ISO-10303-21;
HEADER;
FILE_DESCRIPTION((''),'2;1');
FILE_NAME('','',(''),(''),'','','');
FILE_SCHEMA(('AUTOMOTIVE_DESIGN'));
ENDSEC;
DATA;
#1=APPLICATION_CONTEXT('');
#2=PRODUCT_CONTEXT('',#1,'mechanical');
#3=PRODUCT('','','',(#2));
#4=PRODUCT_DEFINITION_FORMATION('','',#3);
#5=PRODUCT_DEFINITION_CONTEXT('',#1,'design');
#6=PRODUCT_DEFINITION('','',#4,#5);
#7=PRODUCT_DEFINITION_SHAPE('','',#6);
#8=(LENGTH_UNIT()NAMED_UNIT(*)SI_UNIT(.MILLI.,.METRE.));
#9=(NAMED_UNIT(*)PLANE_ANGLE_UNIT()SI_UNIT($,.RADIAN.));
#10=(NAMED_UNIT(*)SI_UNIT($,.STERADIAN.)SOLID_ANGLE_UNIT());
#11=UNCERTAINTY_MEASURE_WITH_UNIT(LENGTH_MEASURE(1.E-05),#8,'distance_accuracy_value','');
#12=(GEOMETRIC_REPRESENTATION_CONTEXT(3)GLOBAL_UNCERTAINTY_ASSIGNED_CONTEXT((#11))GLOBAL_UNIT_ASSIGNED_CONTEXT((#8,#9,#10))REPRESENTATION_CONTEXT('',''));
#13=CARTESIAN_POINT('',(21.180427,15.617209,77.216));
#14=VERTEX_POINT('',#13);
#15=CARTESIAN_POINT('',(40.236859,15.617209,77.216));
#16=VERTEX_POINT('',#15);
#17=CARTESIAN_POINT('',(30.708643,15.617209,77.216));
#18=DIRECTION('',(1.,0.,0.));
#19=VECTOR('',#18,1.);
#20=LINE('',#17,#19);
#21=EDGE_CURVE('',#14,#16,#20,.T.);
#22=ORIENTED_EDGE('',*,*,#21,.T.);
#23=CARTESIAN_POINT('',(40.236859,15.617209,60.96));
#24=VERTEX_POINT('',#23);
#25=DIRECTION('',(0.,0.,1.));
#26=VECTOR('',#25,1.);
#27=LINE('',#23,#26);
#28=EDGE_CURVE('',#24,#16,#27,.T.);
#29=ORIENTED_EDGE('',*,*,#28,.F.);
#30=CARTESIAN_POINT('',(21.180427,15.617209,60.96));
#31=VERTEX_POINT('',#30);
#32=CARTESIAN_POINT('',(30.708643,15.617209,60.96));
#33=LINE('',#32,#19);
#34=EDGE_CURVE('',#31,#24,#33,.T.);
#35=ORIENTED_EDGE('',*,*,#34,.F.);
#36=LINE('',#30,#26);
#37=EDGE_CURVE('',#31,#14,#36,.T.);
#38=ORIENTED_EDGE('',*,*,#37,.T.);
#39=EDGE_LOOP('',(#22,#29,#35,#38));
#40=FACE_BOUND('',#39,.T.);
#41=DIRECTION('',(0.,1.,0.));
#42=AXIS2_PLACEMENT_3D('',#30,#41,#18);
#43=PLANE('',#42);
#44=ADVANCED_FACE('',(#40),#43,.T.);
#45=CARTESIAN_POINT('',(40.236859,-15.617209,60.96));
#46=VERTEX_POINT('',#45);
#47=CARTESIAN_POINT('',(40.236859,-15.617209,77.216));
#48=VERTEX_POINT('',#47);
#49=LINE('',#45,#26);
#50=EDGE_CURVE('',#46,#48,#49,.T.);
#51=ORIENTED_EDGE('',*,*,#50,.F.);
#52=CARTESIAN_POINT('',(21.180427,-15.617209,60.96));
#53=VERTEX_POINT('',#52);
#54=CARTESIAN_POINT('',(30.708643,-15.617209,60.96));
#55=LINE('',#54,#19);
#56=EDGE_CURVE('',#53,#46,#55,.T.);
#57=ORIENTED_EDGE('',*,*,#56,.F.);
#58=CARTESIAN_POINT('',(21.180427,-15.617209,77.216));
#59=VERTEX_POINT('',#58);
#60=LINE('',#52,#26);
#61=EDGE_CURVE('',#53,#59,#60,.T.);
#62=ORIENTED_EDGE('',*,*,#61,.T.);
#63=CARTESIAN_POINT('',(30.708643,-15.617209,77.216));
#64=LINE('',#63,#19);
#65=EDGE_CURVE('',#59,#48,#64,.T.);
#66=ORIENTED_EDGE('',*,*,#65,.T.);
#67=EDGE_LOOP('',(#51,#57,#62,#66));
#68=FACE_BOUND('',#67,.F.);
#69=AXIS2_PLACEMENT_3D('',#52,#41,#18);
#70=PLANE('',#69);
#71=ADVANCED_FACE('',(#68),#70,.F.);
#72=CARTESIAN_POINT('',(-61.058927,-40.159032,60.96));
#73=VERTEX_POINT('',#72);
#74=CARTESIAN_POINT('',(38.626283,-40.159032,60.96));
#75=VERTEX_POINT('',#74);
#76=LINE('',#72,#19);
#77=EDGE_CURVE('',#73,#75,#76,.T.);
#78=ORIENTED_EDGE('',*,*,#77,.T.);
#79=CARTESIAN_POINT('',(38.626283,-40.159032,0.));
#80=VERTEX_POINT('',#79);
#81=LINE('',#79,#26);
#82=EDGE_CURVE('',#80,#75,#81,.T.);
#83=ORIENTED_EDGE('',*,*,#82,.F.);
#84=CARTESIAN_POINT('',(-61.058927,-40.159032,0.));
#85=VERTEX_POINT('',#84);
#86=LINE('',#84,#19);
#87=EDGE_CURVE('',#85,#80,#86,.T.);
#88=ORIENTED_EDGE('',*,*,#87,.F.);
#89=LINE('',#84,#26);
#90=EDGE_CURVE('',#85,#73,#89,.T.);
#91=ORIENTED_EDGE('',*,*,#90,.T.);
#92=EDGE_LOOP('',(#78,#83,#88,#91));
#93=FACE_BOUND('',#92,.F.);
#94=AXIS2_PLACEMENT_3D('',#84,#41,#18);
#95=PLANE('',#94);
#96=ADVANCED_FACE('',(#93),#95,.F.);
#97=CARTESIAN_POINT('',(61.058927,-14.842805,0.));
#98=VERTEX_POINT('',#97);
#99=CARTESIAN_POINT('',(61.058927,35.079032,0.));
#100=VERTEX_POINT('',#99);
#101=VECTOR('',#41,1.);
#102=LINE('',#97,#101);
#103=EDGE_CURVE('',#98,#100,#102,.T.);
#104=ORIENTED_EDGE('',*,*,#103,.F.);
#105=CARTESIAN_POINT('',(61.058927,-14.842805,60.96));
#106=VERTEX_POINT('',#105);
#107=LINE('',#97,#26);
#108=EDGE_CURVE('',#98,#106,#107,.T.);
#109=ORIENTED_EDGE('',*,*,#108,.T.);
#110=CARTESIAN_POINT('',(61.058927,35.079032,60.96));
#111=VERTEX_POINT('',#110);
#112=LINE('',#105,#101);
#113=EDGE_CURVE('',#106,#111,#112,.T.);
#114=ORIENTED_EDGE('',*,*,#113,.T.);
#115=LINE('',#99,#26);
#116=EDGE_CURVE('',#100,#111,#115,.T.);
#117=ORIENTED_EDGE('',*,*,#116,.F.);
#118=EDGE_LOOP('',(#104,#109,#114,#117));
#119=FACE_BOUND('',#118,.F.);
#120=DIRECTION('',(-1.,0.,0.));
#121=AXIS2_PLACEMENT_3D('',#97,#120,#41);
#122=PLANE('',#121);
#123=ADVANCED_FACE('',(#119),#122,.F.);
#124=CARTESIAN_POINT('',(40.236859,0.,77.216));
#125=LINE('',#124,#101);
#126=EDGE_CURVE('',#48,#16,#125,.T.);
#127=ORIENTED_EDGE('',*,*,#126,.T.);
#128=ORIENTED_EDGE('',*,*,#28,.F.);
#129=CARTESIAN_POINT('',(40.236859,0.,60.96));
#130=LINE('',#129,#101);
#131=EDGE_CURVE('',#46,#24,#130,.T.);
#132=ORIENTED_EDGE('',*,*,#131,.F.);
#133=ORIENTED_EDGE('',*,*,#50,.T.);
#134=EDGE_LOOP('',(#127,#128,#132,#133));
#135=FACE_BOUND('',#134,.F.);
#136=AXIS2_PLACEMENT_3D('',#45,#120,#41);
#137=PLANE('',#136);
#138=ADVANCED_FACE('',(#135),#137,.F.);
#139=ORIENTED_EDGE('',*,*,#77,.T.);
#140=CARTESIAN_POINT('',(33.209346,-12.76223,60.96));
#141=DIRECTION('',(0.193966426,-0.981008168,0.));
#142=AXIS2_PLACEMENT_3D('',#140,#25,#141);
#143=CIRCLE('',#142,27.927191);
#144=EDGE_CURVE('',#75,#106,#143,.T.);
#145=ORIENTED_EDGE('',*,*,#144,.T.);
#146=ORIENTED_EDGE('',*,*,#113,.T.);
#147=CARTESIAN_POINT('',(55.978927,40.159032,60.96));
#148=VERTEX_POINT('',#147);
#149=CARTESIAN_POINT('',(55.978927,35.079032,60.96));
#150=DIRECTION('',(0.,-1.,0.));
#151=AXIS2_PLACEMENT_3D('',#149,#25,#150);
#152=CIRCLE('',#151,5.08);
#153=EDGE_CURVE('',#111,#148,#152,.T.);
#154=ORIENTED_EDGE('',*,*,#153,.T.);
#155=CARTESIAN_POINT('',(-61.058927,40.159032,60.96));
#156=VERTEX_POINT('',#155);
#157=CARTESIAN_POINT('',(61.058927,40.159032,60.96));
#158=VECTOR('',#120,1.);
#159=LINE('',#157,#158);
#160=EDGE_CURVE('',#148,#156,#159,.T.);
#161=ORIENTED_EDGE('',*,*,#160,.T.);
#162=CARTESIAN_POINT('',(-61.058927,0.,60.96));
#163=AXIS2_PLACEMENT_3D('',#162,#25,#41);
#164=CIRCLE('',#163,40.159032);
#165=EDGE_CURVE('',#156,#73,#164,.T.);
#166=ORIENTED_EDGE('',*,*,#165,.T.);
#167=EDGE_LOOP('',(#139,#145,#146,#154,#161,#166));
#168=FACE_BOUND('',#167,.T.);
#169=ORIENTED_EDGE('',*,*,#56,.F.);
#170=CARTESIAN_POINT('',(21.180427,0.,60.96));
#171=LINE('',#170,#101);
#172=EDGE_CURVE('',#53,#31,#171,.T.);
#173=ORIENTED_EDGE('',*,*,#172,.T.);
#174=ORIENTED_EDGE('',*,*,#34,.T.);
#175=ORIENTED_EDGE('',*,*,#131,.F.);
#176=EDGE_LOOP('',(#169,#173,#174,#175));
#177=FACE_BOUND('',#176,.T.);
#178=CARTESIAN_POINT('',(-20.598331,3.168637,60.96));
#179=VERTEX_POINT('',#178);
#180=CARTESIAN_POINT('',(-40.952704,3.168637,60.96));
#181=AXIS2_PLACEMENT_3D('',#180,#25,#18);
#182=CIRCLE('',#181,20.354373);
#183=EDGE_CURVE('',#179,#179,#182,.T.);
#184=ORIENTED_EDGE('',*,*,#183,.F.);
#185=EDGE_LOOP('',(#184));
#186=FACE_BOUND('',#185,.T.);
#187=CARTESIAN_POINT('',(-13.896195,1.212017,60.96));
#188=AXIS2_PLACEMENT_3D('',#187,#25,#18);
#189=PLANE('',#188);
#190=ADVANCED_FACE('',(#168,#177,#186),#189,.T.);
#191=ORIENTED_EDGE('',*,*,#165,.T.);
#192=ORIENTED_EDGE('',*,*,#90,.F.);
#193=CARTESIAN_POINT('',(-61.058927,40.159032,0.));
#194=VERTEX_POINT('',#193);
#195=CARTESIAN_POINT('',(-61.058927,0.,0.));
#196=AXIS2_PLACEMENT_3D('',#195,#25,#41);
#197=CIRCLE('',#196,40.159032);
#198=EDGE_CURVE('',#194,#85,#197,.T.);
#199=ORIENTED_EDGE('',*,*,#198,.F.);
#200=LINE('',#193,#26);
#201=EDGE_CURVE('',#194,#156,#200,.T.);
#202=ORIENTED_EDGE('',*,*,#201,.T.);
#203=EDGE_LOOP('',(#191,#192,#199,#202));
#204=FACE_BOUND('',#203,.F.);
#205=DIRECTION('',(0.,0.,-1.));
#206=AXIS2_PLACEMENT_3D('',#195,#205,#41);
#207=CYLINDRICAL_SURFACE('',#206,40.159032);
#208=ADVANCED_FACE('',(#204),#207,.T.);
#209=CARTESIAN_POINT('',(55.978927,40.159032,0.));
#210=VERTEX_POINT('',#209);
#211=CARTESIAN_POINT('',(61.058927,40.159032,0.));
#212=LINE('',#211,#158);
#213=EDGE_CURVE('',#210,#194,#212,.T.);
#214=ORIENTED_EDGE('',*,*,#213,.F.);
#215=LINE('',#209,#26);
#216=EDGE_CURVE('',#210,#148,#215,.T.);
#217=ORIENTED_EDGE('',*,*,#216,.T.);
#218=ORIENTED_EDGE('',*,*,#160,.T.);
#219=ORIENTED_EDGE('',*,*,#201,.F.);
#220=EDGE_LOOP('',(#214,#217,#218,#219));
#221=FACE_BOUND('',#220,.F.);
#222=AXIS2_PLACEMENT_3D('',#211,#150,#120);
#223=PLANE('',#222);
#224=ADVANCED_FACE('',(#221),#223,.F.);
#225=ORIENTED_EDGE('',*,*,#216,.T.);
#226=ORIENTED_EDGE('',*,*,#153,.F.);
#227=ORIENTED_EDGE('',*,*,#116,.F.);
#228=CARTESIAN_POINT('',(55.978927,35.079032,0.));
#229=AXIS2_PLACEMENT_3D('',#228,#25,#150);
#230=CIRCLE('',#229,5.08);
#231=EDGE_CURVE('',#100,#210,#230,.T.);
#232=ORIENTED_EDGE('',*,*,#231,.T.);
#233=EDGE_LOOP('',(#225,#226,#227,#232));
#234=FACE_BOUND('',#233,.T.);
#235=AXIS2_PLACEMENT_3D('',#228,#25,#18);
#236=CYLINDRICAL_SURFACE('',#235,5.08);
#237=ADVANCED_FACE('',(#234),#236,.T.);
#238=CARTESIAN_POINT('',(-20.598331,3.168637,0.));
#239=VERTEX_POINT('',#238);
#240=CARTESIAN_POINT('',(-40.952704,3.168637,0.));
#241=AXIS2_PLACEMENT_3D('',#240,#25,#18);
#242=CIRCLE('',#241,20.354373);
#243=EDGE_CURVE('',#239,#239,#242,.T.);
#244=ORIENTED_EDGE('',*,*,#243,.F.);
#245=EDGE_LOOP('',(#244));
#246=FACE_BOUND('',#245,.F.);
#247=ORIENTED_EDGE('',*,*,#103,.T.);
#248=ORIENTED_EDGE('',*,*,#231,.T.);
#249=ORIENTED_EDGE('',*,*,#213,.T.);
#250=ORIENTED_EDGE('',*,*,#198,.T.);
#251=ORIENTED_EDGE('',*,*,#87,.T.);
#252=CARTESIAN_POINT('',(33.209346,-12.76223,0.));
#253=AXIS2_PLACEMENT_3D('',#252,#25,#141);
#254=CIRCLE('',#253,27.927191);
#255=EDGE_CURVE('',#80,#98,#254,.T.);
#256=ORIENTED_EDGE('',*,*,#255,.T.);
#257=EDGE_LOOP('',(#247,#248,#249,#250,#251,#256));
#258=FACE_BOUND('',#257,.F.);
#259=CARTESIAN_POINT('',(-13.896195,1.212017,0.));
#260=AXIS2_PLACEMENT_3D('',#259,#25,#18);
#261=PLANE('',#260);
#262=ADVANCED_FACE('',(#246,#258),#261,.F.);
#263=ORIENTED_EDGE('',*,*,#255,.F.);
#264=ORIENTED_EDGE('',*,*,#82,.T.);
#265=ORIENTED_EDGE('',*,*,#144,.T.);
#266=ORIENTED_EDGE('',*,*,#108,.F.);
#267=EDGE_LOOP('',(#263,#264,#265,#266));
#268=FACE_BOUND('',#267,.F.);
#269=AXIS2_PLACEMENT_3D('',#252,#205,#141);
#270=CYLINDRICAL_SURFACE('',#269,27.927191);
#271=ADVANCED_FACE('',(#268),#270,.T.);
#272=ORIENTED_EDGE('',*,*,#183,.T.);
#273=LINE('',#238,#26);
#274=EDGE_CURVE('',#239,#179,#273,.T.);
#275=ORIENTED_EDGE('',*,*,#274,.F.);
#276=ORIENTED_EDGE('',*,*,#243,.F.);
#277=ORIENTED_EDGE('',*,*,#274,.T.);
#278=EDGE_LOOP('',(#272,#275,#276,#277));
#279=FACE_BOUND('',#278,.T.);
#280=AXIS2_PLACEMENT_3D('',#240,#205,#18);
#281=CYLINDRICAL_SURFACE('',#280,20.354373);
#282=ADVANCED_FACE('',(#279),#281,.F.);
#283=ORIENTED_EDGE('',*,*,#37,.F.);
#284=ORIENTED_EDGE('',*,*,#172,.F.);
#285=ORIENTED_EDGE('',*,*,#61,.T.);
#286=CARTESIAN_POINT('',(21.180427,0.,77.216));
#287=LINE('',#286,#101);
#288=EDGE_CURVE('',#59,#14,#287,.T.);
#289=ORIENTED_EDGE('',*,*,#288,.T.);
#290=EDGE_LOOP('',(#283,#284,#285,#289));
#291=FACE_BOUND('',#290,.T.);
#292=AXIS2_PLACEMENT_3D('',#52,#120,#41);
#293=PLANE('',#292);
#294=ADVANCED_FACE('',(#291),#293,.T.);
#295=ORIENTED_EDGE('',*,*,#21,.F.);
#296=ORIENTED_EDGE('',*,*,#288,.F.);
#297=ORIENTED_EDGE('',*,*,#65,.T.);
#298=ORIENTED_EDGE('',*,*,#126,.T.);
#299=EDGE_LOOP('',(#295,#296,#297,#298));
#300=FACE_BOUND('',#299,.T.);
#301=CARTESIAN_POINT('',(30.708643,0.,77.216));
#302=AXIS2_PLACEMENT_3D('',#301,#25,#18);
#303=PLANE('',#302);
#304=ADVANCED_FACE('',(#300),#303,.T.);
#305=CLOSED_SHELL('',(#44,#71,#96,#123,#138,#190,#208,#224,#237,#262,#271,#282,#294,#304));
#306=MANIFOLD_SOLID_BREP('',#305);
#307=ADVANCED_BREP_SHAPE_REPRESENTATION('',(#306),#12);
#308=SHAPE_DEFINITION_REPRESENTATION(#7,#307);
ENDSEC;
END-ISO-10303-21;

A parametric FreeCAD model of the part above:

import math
import FreeCAD as App
import Part
import Sketcher
from FreeCAD import Vector
Q = App.Units.Quantity


def edges_at(feature, points):
    """Names of the edges that pass closest to the given points."""
    edges = feature.Shape.Edges
    near = lambda p: min(range(len(edges)), key=lambda i: edges[i].distToShape(Part.Vertex(*p))[0])
    return sorted({f"Edge{near(p) + 1}" for p in points})

doc = App.newDocument("Part")
body = doc.addObject("PartDesign::Body", "Body")

sketch1 = body.newObject("Sketcher::SketchObject", "Sketch")
sketch1.AttachmentSupport = (doc.getObject("XY_Plane"), [""])
sketch1.MapMode = "FlatFace"
sketch1.addGeometry(Part.LineSegment(Vector(61.058927, -14.842805, 0), Vector(61.058927, 40.159032, 0)), False)
sketch1.addGeometry(Part.LineSegment(Vector(61.058927, 40.159032, 0), Vector(-61.058927, 40.159032, 0)), False)
sketch1.addGeometry(Part.ArcOfCircle(Part.Circle(Vector(-61.058927, 0, 0), Vector(0, 0, 1), 40.159032), math.radians(90), math.radians(270)), False)
sketch1.addGeometry(Part.LineSegment(Vector(-61.058927, -40.159032, 0), Vector(38.626283, -40.159032, 0)), False)
sketch1.addGeometry(Part.ArcOfCircle(Part.Circle(Vector(33.209346, -12.76223, 0), Vector(0, 0, 1), 27.927191), math.radians(-78.815649), math.radians(-4.272493)), False)
sketch1.addGeometry(Part.Circle(Vector(-40.952704, 3.168637, 0), Vector(0, 0, 1), 20.354373), False)
sketch1.addConstraint(Sketcher.Constraint("Coincident", 0, 2, 1, 1))
sketch1.addConstraint(Sketcher.Constraint("Tangent", 1, 2, 2, 1))
sketch1.addConstraint(Sketcher.Constraint("Tangent", 2, 2, 3, 1))
sketch1.addConstraint(Sketcher.Constraint("Coincident", 3, 2, 4, 1))
sketch1.addConstraint(Sketcher.Constraint("Coincident", 4, 2, 0, 1))
sketch1.addConstraint(Sketcher.Constraint("Vertical", 0))
sketch1.addConstraint(Sketcher.Constraint("Horizontal", 1))
sketch1.addConstraint(Sketcher.Constraint("Horizontal", 3))
sketch1.addConstraint(Sketcher.Constraint("Symmetric", 0, 2, 2, 2, -1, 1))
sketch1.addConstraint(Sketcher.Constraint("Radius", 4, 27.927191))
sketch1.addConstraint(Sketcher.Constraint("Diameter", 5, 40.708746))
sketch1.addConstraint(Sketcher.Constraint("Radius", 2, 40.159032))
sketch1.addConstraint(Sketcher.Constraint("DistanceX", 3, 1, 3, 2, 99.68521))
sketch1.addConstraint(Sketcher.Constraint("DistanceX", 1, 2, 1, 1, 122.117854))
sketch1.addConstraint(Sketcher.Constraint("DistanceY", 0, 1, 0, 2, 55.001837))
sketch1.addConstraint(Sketcher.Constraint("DistanceX", 5, 3, 4, 3, 74.16205))
sketch1.addConstraint(Sketcher.Constraint("DistanceY", 2, 2, 5, 3, 43.327669))
pad1 = body.newObject("PartDesign::Pad", "Pad")
pad1.Profile = sketch1
pad1.Length = Q("2.4 in")
doc.recompute()

fillet = body.newObject("PartDesign::Fillet", "Fillet")
fillet.Base = (pad1, edges_at(pad1, [(61.059, 40.159, 30.48)]))
fillet.Radius = Q("0.2 in")

sketch2 = body.newObject("Sketcher::SketchObject", "Sketch001")
sketch2.AttachmentSupport = (doc.getObject("XY_Plane"), [""])
sketch2.MapMode = "FlatFace"
sketch2.AttachmentOffset = App.Placement(Vector(0, 0, 2.4 * 25.4), App.Rotation())
sketch2.addGeometry(Part.LineSegment(Vector(21.180427, 15.617209, 0), Vector(21.180427, -15.617209, 0)), False)
sketch2.addGeometry(Part.LineSegment(Vector(21.180427, -15.617209, 0), Vector(40.236859, -15.617209, 0)), False)
sketch2.addGeometry(Part.LineSegment(Vector(40.236859, -15.617209, 0), Vector(40.236859, 15.617209, 0)), False)
sketch2.addGeometry(Part.LineSegment(Vector(40.236859, 15.617209, 0), Vector(21.180427, 15.617209, 0)), False)
sketch2.addConstraint(Sketcher.Constraint("Coincident", 0, 2, 1, 1))
sketch2.addConstraint(Sketcher.Constraint("Coincident", 1, 2, 2, 1))
sketch2.addConstraint(Sketcher.Constraint("Coincident", 2, 2, 3, 1))
sketch2.addConstraint(Sketcher.Constraint("Coincident", 3, 2, 0, 1))
sketch2.addConstraint(Sketcher.Constraint("Vertical", 0))
sketch2.addConstraint(Sketcher.Constraint("Horizontal", 1))
sketch2.addConstraint(Sketcher.Constraint("Vertical", 2))
sketch2.addConstraint(Sketcher.Constraint("Horizontal", 3))
sketch2.addConstraint(Sketcher.Constraint("DistanceY", 0, 2, 0, 1, 31.234418))
sketch2.addConstraint(Sketcher.Constraint("DistanceX", 1, 1, 1, 2, 19.056432))
sketch2.addConstraint(Sketcher.Constraint("DistanceY", 0, 2, -1, 1, 15.617209))
sketch2.addConstraint(Sketcher.Constraint("DistanceX", -1, 1, 1, 2, 40.236859))
pad2 = body.newObject("PartDesign::Pad", "Pad001")
pad2.Profile = sketch2
pad2.Length = Q("0.64 in")

doc.recompute()
